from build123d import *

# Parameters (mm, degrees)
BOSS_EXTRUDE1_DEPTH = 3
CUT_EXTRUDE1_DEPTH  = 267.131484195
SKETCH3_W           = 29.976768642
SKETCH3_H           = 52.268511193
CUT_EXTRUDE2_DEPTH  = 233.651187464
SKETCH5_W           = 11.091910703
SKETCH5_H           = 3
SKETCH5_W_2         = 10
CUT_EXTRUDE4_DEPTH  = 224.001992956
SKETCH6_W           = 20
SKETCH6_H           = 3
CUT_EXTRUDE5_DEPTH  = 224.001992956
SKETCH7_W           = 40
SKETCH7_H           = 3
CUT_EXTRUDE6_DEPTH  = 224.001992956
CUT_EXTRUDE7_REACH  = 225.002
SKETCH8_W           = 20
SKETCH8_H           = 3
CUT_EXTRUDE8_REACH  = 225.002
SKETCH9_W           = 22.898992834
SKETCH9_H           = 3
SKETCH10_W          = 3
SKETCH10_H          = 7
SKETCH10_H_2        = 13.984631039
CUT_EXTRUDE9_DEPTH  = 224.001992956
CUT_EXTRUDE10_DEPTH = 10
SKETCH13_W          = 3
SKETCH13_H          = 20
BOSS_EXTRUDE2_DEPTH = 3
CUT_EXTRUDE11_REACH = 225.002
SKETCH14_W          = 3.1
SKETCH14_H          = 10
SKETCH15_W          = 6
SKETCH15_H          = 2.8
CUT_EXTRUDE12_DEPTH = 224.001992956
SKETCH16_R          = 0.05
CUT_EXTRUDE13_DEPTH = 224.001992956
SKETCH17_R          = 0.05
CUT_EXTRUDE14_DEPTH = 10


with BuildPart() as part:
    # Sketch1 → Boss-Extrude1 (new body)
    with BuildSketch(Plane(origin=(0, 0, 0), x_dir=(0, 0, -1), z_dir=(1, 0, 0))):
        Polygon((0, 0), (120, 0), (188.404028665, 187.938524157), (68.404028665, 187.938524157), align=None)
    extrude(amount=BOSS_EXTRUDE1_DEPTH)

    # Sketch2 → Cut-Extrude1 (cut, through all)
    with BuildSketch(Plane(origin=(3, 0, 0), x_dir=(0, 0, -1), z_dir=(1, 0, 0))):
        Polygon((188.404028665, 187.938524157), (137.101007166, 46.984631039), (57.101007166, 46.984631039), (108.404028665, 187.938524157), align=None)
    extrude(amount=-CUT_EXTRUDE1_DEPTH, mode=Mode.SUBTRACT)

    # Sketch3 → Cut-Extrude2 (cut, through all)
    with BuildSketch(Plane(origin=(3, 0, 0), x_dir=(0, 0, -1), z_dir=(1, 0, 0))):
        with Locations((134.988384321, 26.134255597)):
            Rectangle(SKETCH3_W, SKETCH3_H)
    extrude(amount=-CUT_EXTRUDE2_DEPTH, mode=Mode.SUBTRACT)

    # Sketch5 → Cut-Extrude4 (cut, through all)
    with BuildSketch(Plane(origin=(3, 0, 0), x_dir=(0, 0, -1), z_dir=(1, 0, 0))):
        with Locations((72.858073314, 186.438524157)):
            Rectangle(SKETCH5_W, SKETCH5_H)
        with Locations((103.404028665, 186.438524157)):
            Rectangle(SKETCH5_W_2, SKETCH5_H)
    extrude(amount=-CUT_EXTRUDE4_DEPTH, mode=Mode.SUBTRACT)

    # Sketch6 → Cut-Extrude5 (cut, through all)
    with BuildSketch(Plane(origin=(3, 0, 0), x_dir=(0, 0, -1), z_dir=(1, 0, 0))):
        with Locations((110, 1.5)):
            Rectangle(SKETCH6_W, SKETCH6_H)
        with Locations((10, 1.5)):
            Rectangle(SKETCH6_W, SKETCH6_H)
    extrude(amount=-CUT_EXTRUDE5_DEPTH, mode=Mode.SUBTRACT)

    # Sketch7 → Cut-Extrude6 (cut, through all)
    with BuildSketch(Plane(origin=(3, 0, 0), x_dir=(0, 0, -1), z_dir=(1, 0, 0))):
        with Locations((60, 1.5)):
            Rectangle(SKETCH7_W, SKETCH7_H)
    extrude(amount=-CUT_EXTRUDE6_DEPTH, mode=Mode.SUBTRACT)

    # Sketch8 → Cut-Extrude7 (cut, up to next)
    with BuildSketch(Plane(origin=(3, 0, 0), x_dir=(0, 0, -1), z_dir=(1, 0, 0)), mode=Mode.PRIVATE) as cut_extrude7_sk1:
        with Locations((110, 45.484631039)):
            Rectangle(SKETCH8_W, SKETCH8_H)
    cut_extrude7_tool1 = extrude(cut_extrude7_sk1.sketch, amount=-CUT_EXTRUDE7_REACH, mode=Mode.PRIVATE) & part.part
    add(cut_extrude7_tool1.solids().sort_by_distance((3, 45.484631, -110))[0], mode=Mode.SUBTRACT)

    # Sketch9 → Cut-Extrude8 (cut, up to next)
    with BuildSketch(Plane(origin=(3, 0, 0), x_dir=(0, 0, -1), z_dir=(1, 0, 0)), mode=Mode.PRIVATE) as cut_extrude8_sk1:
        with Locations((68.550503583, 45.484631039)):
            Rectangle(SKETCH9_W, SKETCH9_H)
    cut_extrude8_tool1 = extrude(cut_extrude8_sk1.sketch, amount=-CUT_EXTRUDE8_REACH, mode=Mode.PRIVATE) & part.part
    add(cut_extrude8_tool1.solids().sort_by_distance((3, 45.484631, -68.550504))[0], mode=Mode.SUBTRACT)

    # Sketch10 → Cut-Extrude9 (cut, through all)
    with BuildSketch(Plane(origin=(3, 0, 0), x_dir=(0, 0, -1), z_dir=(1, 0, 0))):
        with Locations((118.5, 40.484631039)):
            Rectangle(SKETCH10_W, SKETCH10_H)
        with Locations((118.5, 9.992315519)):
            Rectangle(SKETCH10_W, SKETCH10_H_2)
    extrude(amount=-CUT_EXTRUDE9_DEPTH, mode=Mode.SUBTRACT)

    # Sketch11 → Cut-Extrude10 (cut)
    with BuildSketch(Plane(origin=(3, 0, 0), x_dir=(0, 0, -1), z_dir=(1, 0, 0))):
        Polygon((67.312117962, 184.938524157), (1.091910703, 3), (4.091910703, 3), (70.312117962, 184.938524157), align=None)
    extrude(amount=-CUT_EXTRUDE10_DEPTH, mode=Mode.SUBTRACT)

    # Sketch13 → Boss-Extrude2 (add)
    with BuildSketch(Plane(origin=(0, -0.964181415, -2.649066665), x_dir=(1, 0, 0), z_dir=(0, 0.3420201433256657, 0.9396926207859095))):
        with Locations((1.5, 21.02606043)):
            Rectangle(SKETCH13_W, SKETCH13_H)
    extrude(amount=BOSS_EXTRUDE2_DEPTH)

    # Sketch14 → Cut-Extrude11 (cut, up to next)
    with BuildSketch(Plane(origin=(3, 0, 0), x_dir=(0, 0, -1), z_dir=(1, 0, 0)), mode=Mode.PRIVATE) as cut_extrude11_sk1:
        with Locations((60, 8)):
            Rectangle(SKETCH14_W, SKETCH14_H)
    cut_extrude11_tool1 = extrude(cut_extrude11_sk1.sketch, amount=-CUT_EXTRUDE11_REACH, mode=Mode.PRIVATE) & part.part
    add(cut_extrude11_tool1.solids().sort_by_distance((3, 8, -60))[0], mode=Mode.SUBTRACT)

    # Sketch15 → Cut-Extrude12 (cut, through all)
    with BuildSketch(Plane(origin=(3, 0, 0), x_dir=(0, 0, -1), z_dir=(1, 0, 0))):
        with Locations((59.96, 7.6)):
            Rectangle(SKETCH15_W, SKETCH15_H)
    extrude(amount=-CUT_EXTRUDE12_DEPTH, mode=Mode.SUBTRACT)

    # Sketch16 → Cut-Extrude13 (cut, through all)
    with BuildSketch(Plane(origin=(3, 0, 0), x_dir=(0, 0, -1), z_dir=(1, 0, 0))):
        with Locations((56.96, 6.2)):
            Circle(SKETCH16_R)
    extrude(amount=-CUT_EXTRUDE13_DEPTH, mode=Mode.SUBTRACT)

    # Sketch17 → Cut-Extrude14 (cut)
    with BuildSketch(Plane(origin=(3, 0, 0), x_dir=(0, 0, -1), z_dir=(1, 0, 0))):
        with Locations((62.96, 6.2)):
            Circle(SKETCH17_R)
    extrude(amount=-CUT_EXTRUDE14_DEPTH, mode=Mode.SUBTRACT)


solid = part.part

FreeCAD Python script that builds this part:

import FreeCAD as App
import Part
import Sketcher
from FreeCAD import Vector
Q = App.Units.Quantity

doc = App.newDocument("Part")
params = doc.addObject("Spreadsheet::Sheet", "Params")
for row, (alias, value) in enumerate([
    ("sketch1_height", "120 mm"),
    ("sketch1_length", "200 mm"),
    ("pad1_length", "3 mm"),
    ("sketch2_height", "80 mm"),
    ("sketch2_length", "150 mm"),
    ("sketch4_width", "3 mm"),
    ("sketch4_height", "10 mm"),
    ("sketch5_width", "3 mm"),
    ("sketch5_height", "20 mm"),
    ("sketch6_width", "3 mm"),
    ("sketch6_height", "40 mm"),
    ("sketch7_width", "3 mm"),
    ("sketch7_height", "20 mm"),
    ("sketch8_width", "3 mm"),
    ("sketch9_width", "7 mm"),
    ("sketch9_height", "3 mm"),
    ("sketch10_height", "3 mm"),
    ("pocket9_length", "10 mm"),
    ("sketch11_width", "3 mm"),
    ("sketch11_height", "20 mm"),
    ("pad2_length", "3 mm"),
    ("sketch12_width", "10 mm"),
    ("sketch12_height", "3.1 mm"),
    ("sketch13_height", "6 mm"),
    ("sketch13_width", "2.8 mm"),
    ("sketch14_diameter", "0.1 mm"),
    ("sketch15_diameter", "0.1 mm"),
    ("pocket13_length", "10 mm"),
], start=1):
    params.set(f"A{row}", alias)
    params.set(f"B{row}", "=" + value)
    params.setAlias(f"B{row}", alias)

body = doc.addObject("PartDesign::Body", "Body")

sketch1 = body.newObject("Sketcher::SketchObject", "Sketch")
sketch1.AttachmentSupport = (doc.getObject("YZ_Plane"), [""])
sketch1.MapMode = "FlatFace"
sketch1.addGeometry([
    Part.LineSegment(Vector(0, 0, 0), Vector(0, -120, 0)),
    Part.LineSegment(Vector(0, -120, 0), Vector(187.938524, -188.404029, 0)),
    Part.LineSegment(Vector(187.938524, -188.404029, 0), Vector(187.938524, -68.404029, 0)),
    Part.LineSegment(Vector(187.938524, -68.404029, 0), Vector(0, 0, 0)),
], False)
sketch1.addConstraint([
    Sketcher.Constraint("Coincident", 0, 2, 1, 1),
    Sketcher.Constraint("Coincident", 1, 2, 2, 1),
    Sketcher.Constraint("Coincident", 2, 2, 3, 1),
    Sketcher.Constraint("Coincident", 3, 2, 0, 1),
    Sketcher.Constraint("Vertical", 0),
    Sketcher.Constraint("Vertical", 2),
    Sketcher.Constraint("Coincident", 3, 2, -1, 1),
    Sketcher.Constraint("Parallel", 1, 3),
    Sketcher.Constraint("DistanceY", 0, 2, 0, 1, Q("120 mm")),
    Sketcher.Constraint("Angle", 1, Q("-20 deg")),
    Sketcher.Constraint("Distance", 1, Q("200 mm")),
])
sketch1.setExpression("Constraints[8]", "Params.sketch1_height")
sketch1.setExpression("Constraints[10]", "Params.sketch1_length")
pad1 = body.newObject("PartDesign::Pad", "Pad")
pad1.Profile = sketch1
pad1.setExpression("Length", "Params.pad1_length")

sketch2 = body.newObject("Sketcher::SketchObject", "Sketch001")
sketch2.AttachmentSupport = (doc.getObject("YZ_Plane"), [""])
sketch2.MapMode = "FlatFace"
sketch2.AttachmentOffset = App.Placement(Vector(0, 0, 3), App.Rotation())
sketch2.addGeometry([
    Part.LineSegment(Vector(46.984631, -137.101007, 0), Vector(187.938524, -188.404029, 0)),
    Part.LineSegment(Vector(187.938524, -188.404029, 0), Vector(187.938524, -108.404029, 0)),
    Part.LineSegment(Vector(187.938524, -108.404029, 0), Vector(46.984631, -57.101007, 0)),
    Part.LineSegment(Vector(46.984631, -57.101007, 0), Vector(46.984631, -137.101007, 0)),
], False)
sketch2.addConstraint([
    Sketcher.Constraint("Coincident", 0, 2, 1, 1),
    Sketcher.Constraint("Coincident", 1, 2, 2, 1),
    Sketcher.Constraint("Coincident", 2, 2, 3, 1),
    Sketcher.Constraint("Coincident", 3, 2, 0, 1),
    Sketcher.Constraint("Vertical", 1),
    Sketcher.Constraint("Vertical", 3),
    Sketcher.Constraint("Parallel", 0, 2),
    Sketcher.Constraint("DistanceY", 1, 1, 1, 2, Q("80 mm")),
    Sketcher.Constraint("Angle", 0, Q("-20 deg")),
    Sketcher.Constraint("Distance", 0, Q("150 mm")),
    Sketcher.Constraint("DistanceY", 0, 2, -1, 1, Q("188.404029 mm")),
    Sketcher.Constraint("DistanceX", -1, 1, 2, 2, Q("46.984631 mm")),
])
sketch2.setExpression("Constraints[7]", "Params.sketch2_height")
sketch2.setExpression("Constraints[9]", "Params.sketch2_length")
pocket1 = body.newObject("PartDesign::Pocket", "Pocket")
pocket1.Profile = sketch2
pocket1.Type = "ThroughAll"

sketch3 = body.newObject("Sketcher::SketchObject", "Sketch002")
sketch3.AttachmentSupport = (doc.getObject("YZ_Plane"), [""])
sketch3.MapMode = "FlatFace"
sketch3.AttachmentOffset = App.Placement(Vector(0, 0, 3), App.Rotation())
sketch3.addGeometry([
    Part.LineSegment(Vector(52.268511, -120, 0), Vector(0, -120, 0)),
    Part.LineSegment(Vector(0, -120, 0), Vector(0, -149.976769, 0)),
    Part.LineSegment(Vector(0, -149.976769, 0), Vector(52.268511, -149.976769, 0)),
    Part.LineSegment(Vector(52.268511, -149.976769, 0), Vector(52.268511, -120, 0)),
], False)
sketch3.addConstraint([
    Sketcher.Constraint("Coincident", 0, 2, 1, 1),
    Sketcher.Constraint("Coincident", 1, 2, 2, 1),
    Sketcher.Constraint("Coincident", 2, 2, 3, 1),
    Sketcher.Constraint("Coincident", 3, 2, 0, 1),
    Sketcher.Constraint("Horizontal", 0),
    Sketcher.Constraint("Vertical", 1),
    Sketcher.Constraint("Horizontal", 2),
    Sketcher.Constraint("Vertical", 3),
    Sketcher.Constraint("PointOnObject", 0, 2, -2),
    Sketcher.Constraint("DistanceY", 0, 2, -1, 1, Q("120 mm")),
    Sketcher.Constraint("DistanceX", 0, 2, 0, 1, Q("52.268511 mm")),
    Sketcher.Constraint("DistanceY", 1, 2, 1, 1, Q("29.976769 mm")),
])
pocket2 = body.newObject("PartDesign::Pocket", "Pocket001")
pocket2.Profile = sketch3
pocket2.Type = "ThroughAll"

sketch4 = body.newObject("Sketcher::SketchObject", "Sketch003")
sketch4.AttachmentSupport = (doc.getObject("YZ_Plane"), [""])
sketch4.MapMode = "FlatFace"
sketch4.AttachmentOffset = App.Placement(Vector(0, 0, 3), App.Rotation())
sketch4.addGeometry([
    Part.LineSegment(Vector(187.938524, -67.312118, 0), Vector(184.938524, -67.312118, 0)),
    Part.LineSegment(Vector(184.938524, -67.312118, 0), Vector(184.938524, -78.404029, 0)),
    Part.LineSegment(Vector(184.938524, -78.404029, 0), Vector(187.938524, -78.404029, 0)),
    Part.LineSegment(Vector(187.938524, -78.404029, 0), Vector(187.938524, -67.312118, 0)),
    Part.LineSegment(Vector(187.938524, -98.404029, 0), Vector(184.938524, -98.404029, 0)),
    Part.LineSegment(Vector(184.938524, -98.404029, 0), Vector(184.938524, -108.404029, 0)),
    Part.LineSegment(Vector(184.938524, -108.404029, 0), Vector(187.938524, -108.404029, 0)),
    Part.LineSegment(Vector(187.938524, -108.404029, 0), Vector(187.938524, -98.404029, 0)),
], False)
sketch4.addConstraint([
    Sketcher.Constraint("Coincident", 0, 2, 1, 1),
    Sketcher.Constraint("Coincident", 1, 2, 2, 1),
    Sketcher.Constraint("Coincident", 2, 2, 3, 1),
    Sketcher.Constraint("Coincident", 3, 2, 0, 1),
    Sketcher.Constraint("Coincident", 4, 2, 5, 1),
    Sketcher.Constraint("Coincident", 5, 2, 6, 1),
    Sketcher.Constraint("Coincident", 6, 2, 7, 1),
    Sketcher.Constraint("Coincident", 7, 2, 4, 1),
    Sketcher.Constraint("Horizontal", 0),
    Sketcher.Constraint("Vertical", 1),
    Sketcher.Constraint("Horizontal", 2),
    Sketcher.Constraint("Vertical", 3),
    Sketcher.Constraint("Horizontal", 4),
    Sketcher.Constraint("Vertical", 5),
    Sketcher.Constraint("Horizontal", 6),
    Sketcher.Constraint("Vertical", 7),
    Sketcher.Constraint("Vertical", 1, 2, 4, 2),
    Sketcher.Constraint("Vertical", 3, 2, 6, 2),
    Sketcher.Constraint("DistanceX", 0, 2, 0, 1, Q("3 mm")),
    Sketcher.Constraint("DistanceY", 5, 2, 5, 1, Q("10 mm")),
    Sketcher.Constraint("DistanceY", 4, 2, 1, 2, Q("20 mm")),
    Sketcher.Constraint("DistanceY", 1, 2, 1, 1, Q("11.091911 mm")),
    Sketcher.Constraint("DistanceY", 1, 2, -1, 1, Q("78.404029 mm")),
    Sketcher.Constraint("DistanceX", -1, 1, 0, 2, Q("184.938524 mm")),
])
sketch4.setExpression("Constraints[18]", "Params.sketch4_width")
sketch4.setExpression("Constraints[19]", "Params.sketch4_height")
pocket3 = body.newObject("PartDesign::Pocket", "Pocket002")
pocket3.Profile = sketch4
pocket3.Type = "ThroughAll"

sketch5 = body.newObject("Sketcher::SketchObject", "Sketch004")
sketch5.AttachmentSupport = (doc.getObject("YZ_Plane"), [""])
sketch5.MapMode = "FlatFace"
sketch5.AttachmentOffset = App.Placement(Vector(0, 0, 3), App.Rotation())
sketch5.addGeometry([
    Part.LineSegment(Vector(3, -100, 0), Vector(0, -100, 0)),
    Part.LineSegment(Vector(0, -100, 0), Vector(0, -120, 0)),
    Part.LineSegment(Vector(0, -120, 0), Vector(3, -120, 0)),
    Part.LineSegment(Vector(3, -120, 0), Vector(3, -100, 0)),
    Part.LineSegment(Vector(3, 0, 0), Vector(0, 0, 0)),
    Part.LineSegment(Vector(0, 0, 0), Vector(0, -20, 0)),
    Part.LineSegment(Vector(0, -20, 0), Vector(3, -20, 0)),
    Part.LineSegment(Vector(3, -20, 0), Vector(3, 0, 0)),
], False)
sketch5.addConstraint([
    Sketcher.Constraint("Coincident", 0, 2, 1, 1),
    Sketcher.Constraint("Coincident", 1, 2, 2, 1),
    Sketcher.Constraint("Coincident", 2, 2, 3, 1),
    Sketcher.Constraint("Coincident", 3, 2, 0, 1),
    Sketcher.Constraint("Coincident", 4, 2, 5, 1),
    Sketcher.Constraint("Coincident", 5, 2, 6, 1),
    Sketcher.Constraint("Coincident", 6, 2, 7, 1),
    Sketcher.Constraint("Coincident", 7, 2, 4, 1),
    Sketcher.Constraint("Horizontal", 0),
    Sketcher.Constraint("Vertical", 1),
    Sketcher.Constraint("Horizontal", 2),
    Sketcher.Constraint("Vertical", 3),
    Sketcher.Constraint("Horizontal", 4),
    Sketcher.Constraint("Vertical", 5),
    Sketcher.Constraint("Horizontal", 6),
    Sketcher.Constraint("Vertical", 7),
    Sketcher.Constraint("Coincident", 4, 2, -1, 1),
    Sketcher.Constraint("PointOnObject", 0, 2, -2),
    Sketcher.Constraint("Vertical", 3, 2, 6, 2),
    Sketcher.Constraint("Equal", 3, 5),
    Sketcher.Constraint("DistanceX", 0, 2, 0, 1, Q("3 mm")),
    Sketcher.Constraint("DistanceY", 1, 2, 1, 1, Q("20 mm")),
    Sketcher.Constraint("DistanceY", 0, 2, -1, 1, Q("100 mm")),
])
sketch5.setExpression("Constraints[20]", "Params.sketch5_width")
sketch5.setExpression("Constraints[21]", "Params.sketch5_height")
pocket4 = body.newObject("PartDesign::Pocket", "Pocket003")
pocket4.Profile = sketch5
pocket4.Type = "ThroughAll"

sketch6 = body.newObject("Sketcher::SketchObject", "Sketch005")
sketch6.AttachmentSupport = (doc.getObject("YZ_Plane"), [""])
sketch6.MapMode = "FlatFace"
sketch6.AttachmentOffset = App.Placement(Vector(0, 0, 3), App.Rotation())
sketch6.addGeometry([
    Part.LineSegment(Vector(3, -40, 0), Vector(0, -40, 0)),
    Part.LineSegment(Vector(0, -40, 0), Vector(0, -80, 0)),
    Part.LineSegment(Vector(0, -80, 0), Vector(3, -80, 0)),
    Part.LineSegment(Vector(3, -80, 0), Vector(3, -40, 0)),
], False)
sketch6.addConstraint([
    Sketcher.Constraint("Coincident", 0, 2, 1, 1),
    Sketcher.Constraint("Coincident", 1, 2, 2, 1),
    Sketcher.Constraint("Coincident", 2, 2, 3, 1),
    Sketcher.Constraint("Coincident", 3, 2, 0, 1),
    Sketcher.Constraint("Horizontal", 0),
    Sketcher.Constraint("Vertical", 1),
    Sketcher.Constraint("Horizontal", 2),
    Sketcher.Constraint("Vertical", 3),
    Sketcher.Constraint("PointOnObject", 0, 2, -2),
    Sketcher.Constraint("DistanceX", 0, 2, 0, 1, Q("3 mm")),
    Sketcher.Constraint("DistanceY", 1, 2, 1, 1, Q("40 mm")),
    Sketcher.Constraint("DistanceY", 0, 2, -1, 1, Q("40 mm")),
])
sketch6.setExpression("Constraints[9]", "Params.sketch6_width")
sketch6.setExpression("Constraints[10]", "Params.sketch6_height")
pocket5 = body.newObject("PartDesign::Pocket", "Pocket004")
pocket5.Profile = sketch6
pocket5.Type = "ThroughAll"

sketch7 = body.newObject("Sketcher::SketchObject", "Sketch006")
sketch7.AttachmentSupport = (doc.getObject("YZ_Plane"), [""])
sketch7.MapMode = "FlatFace"
sketch7.AttachmentOffset = App.Placement(Vector(0, 0, 3), App.Rotation())
sketch7.addGeometry([
    Part.LineSegment(Vector(46.984631, -100, 0), Vector(43.984631, -100, 0)),
    Part.LineSegment(Vector(43.984631, -100, 0), Vector(43.984631, -120, 0)),
    Part.LineSegment(Vector(43.984631, -120, 0), Vector(46.984631, -120, 0)),
    Part.LineSegment(Vector(46.984631, -120, 0), Vector(46.984631, -100, 0)),
], False)
sketch7.addConstraint([
    Sketcher.Constraint("Coincident", 0, 2, 1, 1),
    Sketcher.Constraint("Coincident", 1, 2, 2, 1),
    Sketcher.Constraint("Coincident", 2, 2, 3, 1),
    Sketcher.Constraint("Coincident", 3, 2, 0, 1),
    Sketcher.Constraint("Horizontal", 0),
    Sketcher.Constraint("Vertical", 1),
    Sketcher.Constraint("Horizontal", 2),
    Sketcher.Constraint("Vertical", 3),
    Sketcher.Constraint("DistanceX", 0, 2, 0, 1, Q("3 mm")),
    Sketcher.Constraint("DistanceY", 1, 2, 1, 1, Q("20 mm")),
    Sketcher.Constraint("DistanceY", 0, 2, -1, 1, Q("100 mm")),
    Sketcher.Constraint("DistanceX", -1, 1, 0, 2, Q("43.984631 mm")),
])
sketch7.setExpression("Constraints[8]", "Params.sketch7_width")
sketch7.setExpression("Constraints[9]", "Params.sketch7_height")
pocket6 = body.newObject("PartDesign::Pocket", "Pocket005")
pocket6.Profile = sketch7
pocket6.Type = "UpToFirst"

sketch8 = body.newObject("Sketcher::SketchObject", "Sketch007")
sketch8.AttachmentSupport = (doc.getObject("YZ_Plane"), [""])
sketch8.MapMode = "FlatFace"
sketch8.AttachmentOffset = App.Placement(Vector(0, 0, 3), App.Rotation())
sketch8.addGeometry([
    Part.LineSegment(Vector(46.984631, -57.101007, 0), Vector(43.984631, -57.101007, 0)),
    Part.LineSegment(Vector(43.984631, -57.101007, 0), Vector(43.984631, -80, 0)),
    Part.LineSegment(Vector(43.984631, -80, 0), Vector(46.984631, -80, 0)),
    Part.LineSegment(Vector(46.984631, -80, 0), Vector(46.984631, -57.101007, 0)),
], False)
sketch8.addConstraint([
    Sketcher.Constraint("Coincident", 0, 2, 1, 1),
    Sketcher.Constraint("Coincident", 1, 2, 2, 1),
    Sketcher.Constraint("Coincident", 2, 2, 3, 1),
    Sketcher.Constraint("Coincident", 3, 2, 0, 1),
    Sketcher.Constraint("Horizontal", 0),
    Sketcher.Constraint("Vertical", 1),
    Sketcher.Constraint("Horizontal", 2),
    Sketcher.Constraint("Vertical", 3),
    Sketcher.Constraint("DistanceX", 0, 2, 0, 1, Q("3 mm")),
    Sketcher.Constraint("DistanceY", 1, 2, -1, 1, Q("80 mm")),
    Sketcher.Constraint("DistanceY", 1, 2, 1, 1, Q("22.898993 mm")),
    Sketcher.Constraint("DistanceX", -1, 1, 0, 2, Q("43.984631 mm")),
])
sketch8.setExpression("Constraints[8]", "Params.sketch8_width")
pocket7 = body.newObject("PartDesign::Pocket", "Pocket006")
pocket7.Profile = sketch8
pocket7.Type = "UpToFirst"

sketch9 = body.newObject("Sketcher::SketchObject", "Sketch008")
sketch9.AttachmentSupport = (doc.getObject("YZ_Plane"), [""])
sketch9.MapMode = "FlatFace"
sketch9.AttachmentOffset = App.Placement(Vector(0, 0, 3), App.Rotation())
sketch9.addGeometry([
    Part.LineSegment(Vector(43.984631, -117, 0), Vector(36.984631, -117, 0)),
    Part.LineSegment(Vector(36.984631, -117, 0), Vector(36.984631, -120, 0)),
    Part.LineSegment(Vector(36.984631, -120, 0), Vector(43.984631, -120, 0)),
    Part.LineSegment(Vector(43.984631, -120, 0), Vector(43.984631, -117, 0)),
    Part.LineSegment(Vector(16.984631, -117, 0), Vector(3, -117, 0)),
    Part.LineSegment(Vector(3, -117, 0), Vector(3, -120, 0)),
    Part.LineSegment(Vector(3, -120, 0), Vector(16.984631, -120, 0)),
    Part.LineSegment(Vector(16.984631, -120, 0), Vector(16.984631, -117, 0)),
], False)
sketch9.addConstraint([
    Sketcher.Constraint("Coincident", 0, 2, 1, 1),
    Sketcher.Constraint("Coincident", 1, 2, 2, 1),
    Sketcher.Constraint("Coincident", 2, 2, 3, 1),
    Sketcher.Constraint("Coincident", 3, 2, 0, 1),
    Sketcher.Constraint("Coincident", 4, 2, 5, 1),
    Sketcher.Constraint("Coincident", 5, 2, 6, 1),
    Sketcher.Constraint("Coincident", 6, 2, 7, 1),
    Sketcher.Constraint("Coincident", 7, 2, 4, 1),
    Sketcher.Constraint("Horizontal", 0),
    Sketcher.Constraint("Vertical", 1),
    Sketcher.Constraint("Horizontal", 2),
    Sketcher.Constraint("Vertical", 3),
    Sketcher.Constraint("Horizontal", 4),
    Sketcher.Constraint("Vertical", 5),
    Sketcher.Constraint("Horizontal", 6),
    Sketcher.Constraint("Vertical", 7),
    Sketcher.Constraint("Horizontal", 3, 2, 4, 2),
    Sketcher.Constraint("Horizontal", 2, 2, 5, 2),
    Sketcher.Constraint("DistanceX", 0, 2, 0, 1, Q("7 mm")),
    Sketcher.Constraint("DistanceY", 1, 2, 1, 1, Q("3 mm")),
    Sketcher.Constraint("DistanceY", 0, 2, -1, 1, Q("117 mm")),
    Sketcher.Constraint("DistanceX", -1, 1, 4, 2, Q("3 mm")),
    Sketcher.Constraint("DistanceX", 6, 2, 1, 2, Q("20 mm")),
    Sketcher.Constraint("DistanceX", 4, 2, 4, 1, Q("13.984631 mm")),
])
sketch9.setExpression("Constraints[18]", "Params.sketch9_width")
sketch9.setExpression("Constraints[19]", "Params.sketch9_height")
pocket8 = body.newObject("PartDesign::Pocket", "Pocket007")
pocket8.Profile = sketch9
pocket8.Type = "ThroughAll"

sketch10 = body.newObject("Sketcher::SketchObject", "Sketch009")
sketch10.AttachmentSupport = (doc.getObject("YZ_Plane"), [""])
sketch10.MapMode = "FlatFace"
sketch10.AttachmentOffset = App.Placement(Vector(0, 0, 3), App.Rotation())
sketch10.addGeometry([
    Part.LineSegment(Vector(184.938524, -67.312118, 0), Vector(3, -1.091911, 0)),
    Part.LineSegment(Vector(3, -1.091911, 0), Vector(3, -4.091911, 0)),
    Part.LineSegment(Vector(3, -4.091911, 0), Vector(184.938524, -70.312118, 0)),
    Part.LineSegment(Vector(184.938524, -70.312118, 0), Vector(184.938524, -67.312118, 0)),
], False)
sketch10.addConstraint([
    Sketcher.Constraint("Coincident", 0, 2, 1, 1),
    Sketcher.Constraint("Coincident", 1, 2, 2, 1),
    Sketcher.Constraint("Coincident", 2, 2, 3, 1),
    Sketcher.Constraint("Coincident", 3, 2, 0, 1),
    Sketcher.Constraint("Vertical", 1),
    Sketcher.Constraint("Vertical", 3),
    Sketcher.Constraint("Parallel", 0, 2),
    Sketcher.Constraint("DistanceY", 1, 2, 1, 1, Q("3 mm")),
    Sketcher.Constraint("Angle", 0, Q("160 deg")),
    Sketcher.Constraint("DistanceX", -1, 1, 0, 2, Q("3 mm")),
    Sketcher.Constraint("DistanceY", 0, 2, -1, 1, Q("1.091911 mm")),
    Sketcher.Constraint("Distance", 0, Q("193.614933 mm")),
])
sketch10.setExpression("Constraints[7]", "Params.sketch10_height")
pocket9 = body.newObject("PartDesign::Pocket", "Pocket008")
pocket9.Profile = sketch10
pocket9.setExpression("Length", "Params.pocket9_length")

sketch11 = body.newObject("Sketcher::SketchObject", "Sketch010")
sketch11.Placement = App.Placement(Vector(0, -0.964181, -2.649067), App.Rotation(Vector(1, 0, 0), Vector(0, 0.939692621, -0.342020143), Vector(0, 0.342020143, 0.939692621), "ZXY"))
sketch11.addGeometry([
    Part.LineSegment(Vector(0, 31.02606, 0), Vector(0, 11.02606, 0)),
    Part.LineSegment(Vector(0, 11.02606, 0), Vector(3, 11.02606, 0)),
    Part.LineSegment(Vector(3, 11.02606, 0), Vector(3, 31.02606, 0)),
    Part.LineSegment(Vector(3, 31.02606, 0), Vector(0, 31.02606, 0)),
], False)
sketch11.addConstraint([
    Sketcher.Constraint("Coincident", 0, 2, 1, 1),
    Sketcher.Constraint("Coincident", 1, 2, 2, 1),
    Sketcher.Constraint("Coincident", 2, 2, 3, 1),
    Sketcher.Constraint("Coincident", 3, 2, 0, 1),
    Sketcher.Constraint("Vertical", 0),
    Sketcher.Constraint("Horizontal", 1),
    Sketcher.Constraint("Vertical", 2),
    Sketcher.Constraint("Horizontal", 3),
    Sketcher.Constraint("PointOnObject", 0, 2, -2),
    Sketcher.Constraint("DistanceX", 1, 1, 1, 2, Q("3 mm")),
    Sketcher.Constraint("DistanceY", 0, 2, 0, 1, Q("20 mm")),
    Sketcher.Constraint("DistanceY", -1, 1, 0, 2, Q("11.02606 mm")),
])
sketch11.setExpression("Constraints[9]", "Params.sketch11_width")
sketch11.setExpression("Constraints[10]", "Params.sketch11_height")
pad2 = body.newObject("PartDesign::Pad", "Pad001")
pad2.Profile = sketch11
pad2.setExpression("Length", "Params.pad2_length")

sketch12 = body.newObject("Sketcher::SketchObject", "Sketch011")
sketch12.AttachmentSupport = (doc.getObject("YZ_Plane"), [""])
sketch12.MapMode = "FlatFace"
sketch12.AttachmentOffset = App.Placement(Vector(0, 0, 3), App.Rotation())
sketch12.addGeometry([
    Part.LineSegment(Vector(13, -58.45, 0), Vector(3, -58.45, 0)),
    Part.LineSegment(Vector(3, -58.45, 0), Vector(3, -61.55, 0)),
    Part.LineSegment(Vector(3, -61.55, 0), Vector(13, -61.55, 0)),
    Part.LineSegment(Vector(13, -61.55, 0), Vector(13, -58.45, 0)),
], False)
sketch12.addConstraint([
    Sketcher.Constraint("Coincident", 0, 2, 1, 1),
    Sketcher.Constraint("Coincident", 1, 2, 2, 1),
    Sketcher.Constraint("Coincident", 2, 2, 3, 1),
    Sketcher.Constraint("Coincident", 3, 2, 0, 1),
    Sketcher.Constraint("Horizontal", 0),
    Sketcher.Constraint("Vertical", 1),
    Sketcher.Constraint("Horizontal", 2),
    Sketcher.Constraint("Vertical", 3),
    Sketcher.Constraint("DistanceX", 0, 2, 0, 1, Q("10 mm")),
    Sketcher.Constraint("DistanceY", 1, 2, 1, 1, Q("3.1 mm")),
    Sketcher.Constraint("DistanceX", -1, 1, 0, 2, Q("3 mm")),
    Sketcher.Constraint("DistanceY", 0, 2, -1, 1, Q("58.45 mm")),
])
sketch12.setExpression("Constraints[8]", "Params.sketch12_width")
sketch12.setExpression("Constraints[9]", "Params.sketch12_height")
pocket10 = body.newObject("PartDesign::Pocket", "Pocket009")
pocket10.Profile = sketch12
pocket10.Type = "UpToFirst"

sketch13 = body.newObject("Sketcher::SketchObject", "Sketch012")
sketch13.AttachmentSupport = (doc.getObject("YZ_Plane"), [""])
sketch13.MapMode = "FlatFace"
sketch13.AttachmentOffset = App.Placement(Vector(0, 0, 3), App.Rotation())
sketch13.addGeometry([
    Part.LineSegment(Vector(9, -56.96, 0), Vector(6.2, -56.96, 0)),
    Part.LineSegment(Vector(6.2, -56.96, 0), Vector(6.2, -62.96, 0)),
    Part.LineSegment(Vector(6.2, -62.96, 0), Vector(9, -62.96, 0)),
    Part.LineSegment(Vector(9, -62.96, 0), Vector(9, -56.96, 0)),
], False)
sketch13.addConstraint([
    Sketcher.Constraint("Coincident", 0, 2, 1, 1),
    Sketcher.Constraint("Coincident", 1, 2, 2, 1),
    Sketcher.Constraint("Coincident", 2, 2, 3, 1),
    Sketcher.Constraint("Coincident", 3, 2, 0, 1),
    Sketcher.Constraint("Horizontal", 0),
    Sketcher.Constraint("Vertical", 1),
    Sketcher.Constraint("Horizontal", 2),
    Sketcher.Constraint("Vertical", 3),
    Sketcher.Constraint("DistanceY", 1, 2, 1, 1, Q("6 mm")),
    Sketcher.Constraint("DistanceX", 0, 2, 0, 1, Q("2.8 mm")),
    Sketcher.Constraint("DistanceX", -1, 1, 2, 2, Q("9 mm")),
    Sketcher.Constraint("DistanceY", 0, 2, -1, 1, Q("56.96 mm")),
])
sketch13.setExpression("Constraints[8]", "Params.sketch13_height")
sketch13.setExpression("Constraints[9]", "Params.sketch13_width")
pocket11 = body.newObject("PartDesign::Pocket", "Pocket010")
pocket11.Profile = sketch13
pocket11.Type = "ThroughAll"

sketch14 = body.newObject("Sketcher::SketchObject", "Sketch013")
sketch14.AttachmentSupport = (doc.getObject("YZ_Plane"), [""])
sketch14.MapMode = "FlatFace"
sketch14.AttachmentOffset = App.Placement(Vector(0, 0, 3), App.Rotation())
sketch14.addGeometry(Part.Circle(Vector(6.2, -56.96, 0), Vector(0, 0, 1), 0.05), False)
sketch14.addConstraint([
    Sketcher.Constraint("Diameter", 0, Q("0.1 mm")),
    Sketcher.Constraint("DistanceX", -1, 1, 0, 3, Q("6.2 mm")),
    Sketcher.Constraint("DistanceY", 0, 3, -1, 1, Q("56.96 mm")),
])
sketch14.setExpression("Constraints[0]", "Params.sketch14_diameter")
pocket12 = body.newObject("PartDesign::Pocket", "Pocket011")
pocket12.Profile = sketch14
pocket12.Type = "ThroughAll"

sketch15 = body.newObject("Sketcher::SketchObject", "Sketch014")
sketch15.AttachmentSupport = (doc.getObject("YZ_Plane"), [""])
sketch15.MapMode = "FlatFace"
sketch15.AttachmentOffset = App.Placement(Vector(0, 0, 3), App.Rotation())
sketch15.addGeometry(Part.Circle(Vector(6.2, -62.96, 0), Vector(0, 0, 1), 0.05), False)
sketch15.addConstraint([
    Sketcher.Constraint("Diameter", 0, Q("0.1 mm")),
    Sketcher.Constraint("DistanceX", -1, 1, 0, 3, Q("6.2 mm")),
    Sketcher.Constraint("DistanceY", 0, 3, -1, 1, Q("62.96 mm")),
])
sketch15.setExpression("Constraints[0]", "Params.sketch15_diameter")
pocket13 = body.newObject("PartDesign::Pocket", "Pocket012")
pocket13.Profile = sketch15
pocket13.setExpression("Length", "Params.pocket13_length")

doc.recompute()
